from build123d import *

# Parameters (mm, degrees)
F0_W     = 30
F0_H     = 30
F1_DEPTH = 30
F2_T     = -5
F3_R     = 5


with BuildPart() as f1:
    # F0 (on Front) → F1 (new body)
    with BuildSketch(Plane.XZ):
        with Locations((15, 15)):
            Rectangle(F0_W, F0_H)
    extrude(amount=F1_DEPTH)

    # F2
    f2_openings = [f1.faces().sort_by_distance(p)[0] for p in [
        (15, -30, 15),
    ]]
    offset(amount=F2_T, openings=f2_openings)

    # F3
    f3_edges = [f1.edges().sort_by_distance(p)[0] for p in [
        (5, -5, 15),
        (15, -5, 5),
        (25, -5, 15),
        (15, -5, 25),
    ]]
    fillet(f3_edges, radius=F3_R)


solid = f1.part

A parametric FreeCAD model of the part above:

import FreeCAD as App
import Part
import Sketcher
from FreeCAD import Vector
Q = App.Units.Quantity


def edges_at(feature, points):
    """Names of the edges that pass closest to the given points."""
    edges = feature.Shape.Edges
    near = lambda p: min(range(len(edges)), key=lambda i: edges[i].distToShape(Part.Vertex(*p))[0])
    return sorted({f"Edge{near(p) + 1}" for p in points})


def faces_at(feature, points):
    """Names of the faces that lie closest to the given points."""
    faces = feature.Shape.Faces
    near = lambda p: min(range(len(faces)), key=lambda i: faces[i].distToShape(Part.Vertex(*p))[0])
    return sorted({f"Face{near(p) + 1}" for p in points})


def add_polygon(sketch, points):
    """Adds a closed chain of lines whose ends are joined by coincident constraints."""
    first, n = sketch.GeometryCount, len(points)
    for a, b in zip(points, points[1:] + points[:1]):
        sketch.addGeometry(Part.LineSegment(App.Vector(*a, 0), App.Vector(*b, 0)), False)
    for i in range(n):
        sketch.addConstraint(Sketcher.Constraint("Coincident", first + i, 2, first + (i + 1) % n, 1))

doc = App.newDocument("Part")
body = doc.addObject("PartDesign::Body", "Body")

# Sketch on XZ plane
sketch1 = body.newObject("Sketcher::SketchObject", "Sketch")
sketch1.AttachmentSupport = (doc.getObject("XZ_Plane"), [""])
sketch1.MapMode = "FlatFace"
add_polygon(sketch1, [(0, 30), (0, 0), (30, 0), (30, 30)])  # lines 0-3
sketch1.addConstraint([
    Sketcher.Constraint("Vertical", 0),
    Sketcher.Constraint("Horizontal", 1),
    Sketcher.Constraint("Vertical", 2),
    Sketcher.Constraint("Horizontal", 3),
    Sketcher.Constraint("Coincident", 0, 2, -1, 1),
    Sketcher.Constraint("Equal", 3, 0),
    Sketcher.Constraint("DistanceX", 1, 1, 1, 2, Q("30 mm")),
])
pad1 = body.newObject("PartDesign::Pad", "Pad")
pad1.Profile = sketch1
pad1.Length = 30
doc.recompute()

thickness = body.newObject("PartDesign::Thickness", "Thickness")
thickness.Base = (pad1, faces_at(pad1, [(15, -30, 15)]))
thickness.Value = 5
thickness.Reversed = True
thickness.Join = "Arc"
doc.recompute()

fillet = body.newObject("PartDesign::Fillet", "Fillet")
fillet.Base = (thickness, edges_at(thickness, [
    (5, -5, 15),
    (15, -5, 5),
    (25, -5, 15),
    (15, -5, 25),
]))
fillet.Radius = 5

doc.recompute()
